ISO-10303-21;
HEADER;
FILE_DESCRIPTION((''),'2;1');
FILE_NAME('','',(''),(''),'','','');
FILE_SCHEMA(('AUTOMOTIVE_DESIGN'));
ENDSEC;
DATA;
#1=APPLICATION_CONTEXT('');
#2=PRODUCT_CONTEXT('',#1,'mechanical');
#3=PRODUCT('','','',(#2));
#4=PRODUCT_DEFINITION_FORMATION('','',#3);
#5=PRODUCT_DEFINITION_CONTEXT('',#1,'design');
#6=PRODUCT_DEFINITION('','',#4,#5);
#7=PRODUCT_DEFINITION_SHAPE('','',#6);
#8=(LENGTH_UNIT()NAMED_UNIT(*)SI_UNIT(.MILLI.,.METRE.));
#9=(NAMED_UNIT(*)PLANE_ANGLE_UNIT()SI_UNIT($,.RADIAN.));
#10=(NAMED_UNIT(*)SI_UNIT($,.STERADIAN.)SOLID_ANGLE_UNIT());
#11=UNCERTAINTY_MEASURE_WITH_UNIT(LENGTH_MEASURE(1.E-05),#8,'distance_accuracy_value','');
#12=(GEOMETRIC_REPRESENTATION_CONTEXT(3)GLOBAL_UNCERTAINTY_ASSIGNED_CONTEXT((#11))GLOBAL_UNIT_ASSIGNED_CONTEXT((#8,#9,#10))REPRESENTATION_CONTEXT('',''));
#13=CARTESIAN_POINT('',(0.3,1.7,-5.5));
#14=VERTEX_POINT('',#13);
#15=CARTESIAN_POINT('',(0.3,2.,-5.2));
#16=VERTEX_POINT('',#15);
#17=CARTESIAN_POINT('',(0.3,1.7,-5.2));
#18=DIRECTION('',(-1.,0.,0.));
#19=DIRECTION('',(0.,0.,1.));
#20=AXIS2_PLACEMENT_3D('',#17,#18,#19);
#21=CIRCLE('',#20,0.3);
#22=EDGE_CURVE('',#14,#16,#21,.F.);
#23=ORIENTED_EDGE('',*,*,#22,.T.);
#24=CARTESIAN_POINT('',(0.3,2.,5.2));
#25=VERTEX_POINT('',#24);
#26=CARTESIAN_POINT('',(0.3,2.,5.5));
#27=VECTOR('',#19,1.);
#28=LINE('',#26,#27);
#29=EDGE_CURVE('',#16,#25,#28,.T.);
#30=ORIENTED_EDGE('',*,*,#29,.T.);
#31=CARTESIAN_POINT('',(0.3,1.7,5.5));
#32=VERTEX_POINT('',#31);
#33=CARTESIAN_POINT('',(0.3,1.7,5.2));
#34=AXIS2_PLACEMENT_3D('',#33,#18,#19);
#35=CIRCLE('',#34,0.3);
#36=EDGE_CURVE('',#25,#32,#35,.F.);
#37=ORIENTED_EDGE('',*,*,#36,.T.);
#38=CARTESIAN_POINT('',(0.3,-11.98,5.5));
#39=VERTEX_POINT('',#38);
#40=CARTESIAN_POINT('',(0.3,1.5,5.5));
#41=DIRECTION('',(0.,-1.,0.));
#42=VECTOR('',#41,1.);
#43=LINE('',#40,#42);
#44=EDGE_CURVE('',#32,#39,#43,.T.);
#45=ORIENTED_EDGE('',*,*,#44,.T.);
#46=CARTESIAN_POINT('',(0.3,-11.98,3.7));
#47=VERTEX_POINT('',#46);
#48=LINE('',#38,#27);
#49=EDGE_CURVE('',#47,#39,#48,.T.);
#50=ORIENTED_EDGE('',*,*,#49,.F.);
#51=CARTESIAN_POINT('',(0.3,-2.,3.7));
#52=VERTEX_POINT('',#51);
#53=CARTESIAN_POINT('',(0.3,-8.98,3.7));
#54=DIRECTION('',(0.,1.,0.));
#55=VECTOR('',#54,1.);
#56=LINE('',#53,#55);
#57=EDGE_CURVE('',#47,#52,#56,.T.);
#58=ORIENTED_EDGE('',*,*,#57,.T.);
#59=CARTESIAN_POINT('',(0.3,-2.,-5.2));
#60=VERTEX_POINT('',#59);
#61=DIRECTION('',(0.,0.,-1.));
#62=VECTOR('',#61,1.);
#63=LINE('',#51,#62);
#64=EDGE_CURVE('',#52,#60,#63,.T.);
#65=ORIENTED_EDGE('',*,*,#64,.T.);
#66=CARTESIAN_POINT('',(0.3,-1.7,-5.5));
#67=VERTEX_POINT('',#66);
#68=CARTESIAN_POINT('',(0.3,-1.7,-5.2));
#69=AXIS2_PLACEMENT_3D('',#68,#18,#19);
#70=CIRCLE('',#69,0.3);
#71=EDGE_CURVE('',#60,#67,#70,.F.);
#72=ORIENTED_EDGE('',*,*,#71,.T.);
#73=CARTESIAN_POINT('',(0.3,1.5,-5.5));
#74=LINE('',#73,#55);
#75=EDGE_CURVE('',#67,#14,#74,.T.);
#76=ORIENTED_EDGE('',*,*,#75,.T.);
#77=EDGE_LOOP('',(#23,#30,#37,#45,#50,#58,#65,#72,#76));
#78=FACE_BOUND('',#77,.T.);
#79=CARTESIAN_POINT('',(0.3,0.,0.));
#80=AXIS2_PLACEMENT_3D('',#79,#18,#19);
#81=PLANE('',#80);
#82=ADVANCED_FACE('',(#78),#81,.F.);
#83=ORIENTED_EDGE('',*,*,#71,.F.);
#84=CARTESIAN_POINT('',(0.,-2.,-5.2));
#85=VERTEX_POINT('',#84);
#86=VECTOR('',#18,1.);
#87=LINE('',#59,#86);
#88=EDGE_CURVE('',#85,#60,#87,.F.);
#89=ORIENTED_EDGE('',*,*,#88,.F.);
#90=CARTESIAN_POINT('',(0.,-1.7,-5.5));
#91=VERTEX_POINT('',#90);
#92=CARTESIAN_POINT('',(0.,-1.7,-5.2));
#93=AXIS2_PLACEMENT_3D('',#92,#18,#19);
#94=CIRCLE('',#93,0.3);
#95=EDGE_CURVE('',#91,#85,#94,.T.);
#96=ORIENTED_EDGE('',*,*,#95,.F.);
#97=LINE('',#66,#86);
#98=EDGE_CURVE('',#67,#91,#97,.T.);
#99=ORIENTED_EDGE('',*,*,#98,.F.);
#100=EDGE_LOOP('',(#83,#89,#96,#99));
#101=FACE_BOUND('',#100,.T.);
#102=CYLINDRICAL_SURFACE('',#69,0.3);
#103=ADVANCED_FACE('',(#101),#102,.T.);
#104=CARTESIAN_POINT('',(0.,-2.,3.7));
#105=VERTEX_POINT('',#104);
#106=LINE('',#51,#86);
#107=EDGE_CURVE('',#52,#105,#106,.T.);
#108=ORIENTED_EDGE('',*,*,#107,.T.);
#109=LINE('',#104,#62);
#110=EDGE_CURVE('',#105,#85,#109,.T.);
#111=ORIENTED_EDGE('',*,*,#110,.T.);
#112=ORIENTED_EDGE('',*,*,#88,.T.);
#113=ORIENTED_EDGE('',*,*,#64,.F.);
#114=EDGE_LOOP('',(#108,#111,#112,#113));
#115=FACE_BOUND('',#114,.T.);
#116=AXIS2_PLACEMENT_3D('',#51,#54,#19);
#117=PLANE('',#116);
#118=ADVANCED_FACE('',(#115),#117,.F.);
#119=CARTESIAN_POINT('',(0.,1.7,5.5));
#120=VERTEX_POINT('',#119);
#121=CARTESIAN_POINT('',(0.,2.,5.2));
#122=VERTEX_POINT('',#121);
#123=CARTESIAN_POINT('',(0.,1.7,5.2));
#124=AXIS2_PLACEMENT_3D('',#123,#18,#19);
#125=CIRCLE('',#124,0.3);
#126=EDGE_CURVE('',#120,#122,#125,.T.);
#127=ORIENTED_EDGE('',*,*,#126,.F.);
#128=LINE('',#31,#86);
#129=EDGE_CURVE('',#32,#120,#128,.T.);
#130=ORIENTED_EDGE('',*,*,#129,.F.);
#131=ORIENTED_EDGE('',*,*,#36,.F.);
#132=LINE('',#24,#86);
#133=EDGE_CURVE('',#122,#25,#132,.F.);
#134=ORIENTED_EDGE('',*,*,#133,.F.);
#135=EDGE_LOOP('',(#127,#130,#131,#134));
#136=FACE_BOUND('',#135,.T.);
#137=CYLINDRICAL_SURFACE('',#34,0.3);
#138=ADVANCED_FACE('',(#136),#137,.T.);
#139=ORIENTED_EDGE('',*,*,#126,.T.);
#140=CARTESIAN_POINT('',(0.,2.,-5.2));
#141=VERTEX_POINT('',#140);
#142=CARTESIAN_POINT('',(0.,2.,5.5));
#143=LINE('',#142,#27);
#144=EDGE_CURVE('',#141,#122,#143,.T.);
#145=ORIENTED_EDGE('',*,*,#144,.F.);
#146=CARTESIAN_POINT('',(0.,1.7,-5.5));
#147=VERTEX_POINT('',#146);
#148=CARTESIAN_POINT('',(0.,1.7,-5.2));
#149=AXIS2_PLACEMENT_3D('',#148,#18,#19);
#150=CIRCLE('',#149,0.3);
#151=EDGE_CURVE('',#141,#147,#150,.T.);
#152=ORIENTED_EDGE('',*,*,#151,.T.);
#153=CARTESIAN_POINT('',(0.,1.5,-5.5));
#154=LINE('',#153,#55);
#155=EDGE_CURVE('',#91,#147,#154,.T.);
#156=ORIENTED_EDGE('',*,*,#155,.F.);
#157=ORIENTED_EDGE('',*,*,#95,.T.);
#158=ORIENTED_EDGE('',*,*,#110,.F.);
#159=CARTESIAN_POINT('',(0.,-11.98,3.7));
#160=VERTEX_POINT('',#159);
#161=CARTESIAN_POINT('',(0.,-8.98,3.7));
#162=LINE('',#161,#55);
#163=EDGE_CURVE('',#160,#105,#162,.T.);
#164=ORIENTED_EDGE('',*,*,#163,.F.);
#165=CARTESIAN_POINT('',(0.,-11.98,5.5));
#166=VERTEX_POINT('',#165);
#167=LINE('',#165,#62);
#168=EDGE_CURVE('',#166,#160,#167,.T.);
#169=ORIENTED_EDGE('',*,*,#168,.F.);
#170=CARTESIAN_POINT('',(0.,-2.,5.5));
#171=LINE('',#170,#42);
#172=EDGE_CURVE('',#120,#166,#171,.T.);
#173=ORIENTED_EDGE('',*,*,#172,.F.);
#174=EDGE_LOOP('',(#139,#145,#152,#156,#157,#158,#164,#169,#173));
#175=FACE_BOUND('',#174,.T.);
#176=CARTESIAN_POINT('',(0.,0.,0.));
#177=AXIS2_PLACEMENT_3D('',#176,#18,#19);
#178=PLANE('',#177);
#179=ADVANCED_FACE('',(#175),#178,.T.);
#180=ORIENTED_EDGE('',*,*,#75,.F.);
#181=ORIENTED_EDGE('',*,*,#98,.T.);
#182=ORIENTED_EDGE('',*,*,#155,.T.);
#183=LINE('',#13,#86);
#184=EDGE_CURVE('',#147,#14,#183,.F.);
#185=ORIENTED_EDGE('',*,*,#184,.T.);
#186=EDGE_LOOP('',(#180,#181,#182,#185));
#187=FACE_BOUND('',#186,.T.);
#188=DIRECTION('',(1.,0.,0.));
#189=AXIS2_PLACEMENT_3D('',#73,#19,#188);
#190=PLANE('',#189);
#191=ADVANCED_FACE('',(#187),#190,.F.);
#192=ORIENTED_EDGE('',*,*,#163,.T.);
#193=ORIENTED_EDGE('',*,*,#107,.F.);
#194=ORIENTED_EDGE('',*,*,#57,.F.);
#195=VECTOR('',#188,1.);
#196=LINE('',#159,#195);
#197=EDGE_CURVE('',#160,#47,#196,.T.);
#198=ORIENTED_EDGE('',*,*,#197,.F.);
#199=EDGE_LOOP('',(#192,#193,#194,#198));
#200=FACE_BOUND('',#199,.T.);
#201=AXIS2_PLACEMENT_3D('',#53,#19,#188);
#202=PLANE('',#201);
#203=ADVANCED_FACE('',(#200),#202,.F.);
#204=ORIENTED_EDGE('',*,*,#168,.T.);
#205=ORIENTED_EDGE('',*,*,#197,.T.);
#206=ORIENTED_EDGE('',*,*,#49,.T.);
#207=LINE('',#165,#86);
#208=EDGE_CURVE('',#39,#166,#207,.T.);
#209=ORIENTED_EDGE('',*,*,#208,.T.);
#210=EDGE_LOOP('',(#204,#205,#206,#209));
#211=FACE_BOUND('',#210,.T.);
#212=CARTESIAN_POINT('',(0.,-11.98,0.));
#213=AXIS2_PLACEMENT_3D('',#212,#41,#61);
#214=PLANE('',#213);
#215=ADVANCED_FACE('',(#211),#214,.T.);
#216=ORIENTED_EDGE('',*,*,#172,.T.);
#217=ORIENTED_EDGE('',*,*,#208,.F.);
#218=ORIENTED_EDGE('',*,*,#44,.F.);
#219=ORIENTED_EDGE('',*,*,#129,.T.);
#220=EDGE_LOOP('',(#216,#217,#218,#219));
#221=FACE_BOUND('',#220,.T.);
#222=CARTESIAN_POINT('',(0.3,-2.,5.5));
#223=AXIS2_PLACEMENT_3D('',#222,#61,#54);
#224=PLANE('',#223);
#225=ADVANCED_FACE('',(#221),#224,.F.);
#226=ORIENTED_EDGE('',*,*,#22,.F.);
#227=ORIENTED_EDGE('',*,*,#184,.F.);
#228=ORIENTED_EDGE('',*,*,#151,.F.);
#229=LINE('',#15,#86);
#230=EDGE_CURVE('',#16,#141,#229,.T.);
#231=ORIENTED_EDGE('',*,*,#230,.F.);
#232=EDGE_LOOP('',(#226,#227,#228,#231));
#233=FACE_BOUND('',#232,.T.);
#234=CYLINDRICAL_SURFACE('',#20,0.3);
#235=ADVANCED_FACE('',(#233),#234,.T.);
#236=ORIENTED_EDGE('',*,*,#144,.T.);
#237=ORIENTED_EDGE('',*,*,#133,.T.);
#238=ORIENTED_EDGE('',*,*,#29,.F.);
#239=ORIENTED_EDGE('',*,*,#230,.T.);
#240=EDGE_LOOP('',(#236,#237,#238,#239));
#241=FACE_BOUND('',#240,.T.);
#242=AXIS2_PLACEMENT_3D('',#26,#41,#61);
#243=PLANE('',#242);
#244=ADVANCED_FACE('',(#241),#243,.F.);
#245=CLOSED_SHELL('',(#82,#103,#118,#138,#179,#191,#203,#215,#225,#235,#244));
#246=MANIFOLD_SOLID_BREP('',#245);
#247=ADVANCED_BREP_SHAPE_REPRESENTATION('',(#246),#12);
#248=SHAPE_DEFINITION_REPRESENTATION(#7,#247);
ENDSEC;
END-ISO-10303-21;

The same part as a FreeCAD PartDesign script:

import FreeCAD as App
import Part
import Sketcher
Q = App.Units.Quantity


def edges_at(feature, points):
    """Names of the edges that pass closest to the given points."""
    edges = feature.Shape.Edges
    near = lambda p: min(range(len(edges)), key=lambda i: edges[i].distToShape(Part.Vertex(*p))[0])
    return sorted({f"Edge{near(p) + 1}" for p in points})


def add_polygon(sketch, points):
    """Adds a closed chain of lines whose ends are joined by coincident constraints."""
    first, n = sketch.GeometryCount, len(points)
    for a, b in zip(points, points[1:] + points[:1]):
        sketch.addGeometry(Part.LineSegment(App.Vector(*a, 0), App.Vector(*b, 0)), False)
    for i in range(n):
        sketch.addConstraint(Sketcher.Constraint("Coincident", first + i, 2, first + (i + 1) % n, 1))

doc = App.newDocument("Part")
body = doc.addObject("PartDesign::Body", "Body")

# Sketch on YZ plane
sketch1 = body.newObject("Sketcher::SketchObject", "Sketch")
sketch1.AttachmentSupport = (doc.getObject("YZ_Plane"), [""])
sketch1.MapMode = "FlatFace"
add_polygon(sketch1, [(2, 5.5), (-9, 5.5), (-9, 3.7), (-2, 3.7), (-2, -5.5), (2, -5.5)])  # lines 0-5
sketch1.addConstraint([
    Sketcher.Constraint("Horizontal", 0),
    Sketcher.Constraint("Vertical", 1),
    Sketcher.Constraint("Horizontal", 2),
    Sketcher.Constraint("Vertical", 3),
    Sketcher.Constraint("Horizontal", 4),
    Sketcher.Constraint("Vertical", 5),
    Sketcher.Constraint("Symmetric", 3, 2, 5, 2, -1, 1),
    Sketcher.Constraint("DistanceX", 4, 1, 4, 2, Q("4 mm")),
    Sketcher.Constraint("DistanceY", 5, 1, 5, 2, Q("11 mm")),
    Sketcher.Constraint("DistanceY", 1, 2, 1, 1, Q("1.8 mm")),
    Sketcher.Constraint("DistanceX", 0, 2, 0, 1, Q("10.98 mm")),
])
pad1 = body.newObject("PartDesign::Pad", "Pad")
pad1.Profile = sketch1
pad1.Length = 0.3
doc.recompute()

fillet = body.newObject("PartDesign::Fillet", "Fillet")
fillet.Base = (pad1, edges_at(pad1, [(0.15, -2, -5.5), (0.15, 2, 5.5), (0.15, 2, -5.5)]))
fillet.Radius = 0.3

# Sketch on XZ plane
sketch2 = body.newObject("Sketcher::SketchObject", "Sketch001")
sketch2.AttachmentSupport = (doc.getObject("XZ_Plane"), [""])
sketch2.MapMode = "FlatFace"
sketch2.AttachmentOffset = App.Placement(App.Vector(0, 0, 8.98), App.Rotation())
add_polygon(sketch2, [(0, 5.5), (0, 3.7), (0.3, 3.7), (0.3, 5.5)])  # lines 0-3
sketch2.addConstraint([
    Sketcher.Constraint("Vertical", 0),
    Sketcher.Constraint("Horizontal", 1),
    Sketcher.Constraint("Vertical", 2),
    Sketcher.Constraint("Horizontal", 3),
    Sketcher.Constraint("PointOnObject", 0, 2, -2),
    Sketcher.Constraint("DistanceX", 1, 1, 1, 2, Q("0.3 mm")),
    Sketcher.Constraint("DistanceY", 0, 2, 0, 1, Q("1.8 mm")),
    Sketcher.Constraint("DistanceY", -1, 1, 0, 2, Q("3.7 mm")),
])
pad2 = body.newObject("PartDesign::Pad", "Pad001")
pad2.Profile = sketch2
pad2.Length = 3

doc.recompute()
